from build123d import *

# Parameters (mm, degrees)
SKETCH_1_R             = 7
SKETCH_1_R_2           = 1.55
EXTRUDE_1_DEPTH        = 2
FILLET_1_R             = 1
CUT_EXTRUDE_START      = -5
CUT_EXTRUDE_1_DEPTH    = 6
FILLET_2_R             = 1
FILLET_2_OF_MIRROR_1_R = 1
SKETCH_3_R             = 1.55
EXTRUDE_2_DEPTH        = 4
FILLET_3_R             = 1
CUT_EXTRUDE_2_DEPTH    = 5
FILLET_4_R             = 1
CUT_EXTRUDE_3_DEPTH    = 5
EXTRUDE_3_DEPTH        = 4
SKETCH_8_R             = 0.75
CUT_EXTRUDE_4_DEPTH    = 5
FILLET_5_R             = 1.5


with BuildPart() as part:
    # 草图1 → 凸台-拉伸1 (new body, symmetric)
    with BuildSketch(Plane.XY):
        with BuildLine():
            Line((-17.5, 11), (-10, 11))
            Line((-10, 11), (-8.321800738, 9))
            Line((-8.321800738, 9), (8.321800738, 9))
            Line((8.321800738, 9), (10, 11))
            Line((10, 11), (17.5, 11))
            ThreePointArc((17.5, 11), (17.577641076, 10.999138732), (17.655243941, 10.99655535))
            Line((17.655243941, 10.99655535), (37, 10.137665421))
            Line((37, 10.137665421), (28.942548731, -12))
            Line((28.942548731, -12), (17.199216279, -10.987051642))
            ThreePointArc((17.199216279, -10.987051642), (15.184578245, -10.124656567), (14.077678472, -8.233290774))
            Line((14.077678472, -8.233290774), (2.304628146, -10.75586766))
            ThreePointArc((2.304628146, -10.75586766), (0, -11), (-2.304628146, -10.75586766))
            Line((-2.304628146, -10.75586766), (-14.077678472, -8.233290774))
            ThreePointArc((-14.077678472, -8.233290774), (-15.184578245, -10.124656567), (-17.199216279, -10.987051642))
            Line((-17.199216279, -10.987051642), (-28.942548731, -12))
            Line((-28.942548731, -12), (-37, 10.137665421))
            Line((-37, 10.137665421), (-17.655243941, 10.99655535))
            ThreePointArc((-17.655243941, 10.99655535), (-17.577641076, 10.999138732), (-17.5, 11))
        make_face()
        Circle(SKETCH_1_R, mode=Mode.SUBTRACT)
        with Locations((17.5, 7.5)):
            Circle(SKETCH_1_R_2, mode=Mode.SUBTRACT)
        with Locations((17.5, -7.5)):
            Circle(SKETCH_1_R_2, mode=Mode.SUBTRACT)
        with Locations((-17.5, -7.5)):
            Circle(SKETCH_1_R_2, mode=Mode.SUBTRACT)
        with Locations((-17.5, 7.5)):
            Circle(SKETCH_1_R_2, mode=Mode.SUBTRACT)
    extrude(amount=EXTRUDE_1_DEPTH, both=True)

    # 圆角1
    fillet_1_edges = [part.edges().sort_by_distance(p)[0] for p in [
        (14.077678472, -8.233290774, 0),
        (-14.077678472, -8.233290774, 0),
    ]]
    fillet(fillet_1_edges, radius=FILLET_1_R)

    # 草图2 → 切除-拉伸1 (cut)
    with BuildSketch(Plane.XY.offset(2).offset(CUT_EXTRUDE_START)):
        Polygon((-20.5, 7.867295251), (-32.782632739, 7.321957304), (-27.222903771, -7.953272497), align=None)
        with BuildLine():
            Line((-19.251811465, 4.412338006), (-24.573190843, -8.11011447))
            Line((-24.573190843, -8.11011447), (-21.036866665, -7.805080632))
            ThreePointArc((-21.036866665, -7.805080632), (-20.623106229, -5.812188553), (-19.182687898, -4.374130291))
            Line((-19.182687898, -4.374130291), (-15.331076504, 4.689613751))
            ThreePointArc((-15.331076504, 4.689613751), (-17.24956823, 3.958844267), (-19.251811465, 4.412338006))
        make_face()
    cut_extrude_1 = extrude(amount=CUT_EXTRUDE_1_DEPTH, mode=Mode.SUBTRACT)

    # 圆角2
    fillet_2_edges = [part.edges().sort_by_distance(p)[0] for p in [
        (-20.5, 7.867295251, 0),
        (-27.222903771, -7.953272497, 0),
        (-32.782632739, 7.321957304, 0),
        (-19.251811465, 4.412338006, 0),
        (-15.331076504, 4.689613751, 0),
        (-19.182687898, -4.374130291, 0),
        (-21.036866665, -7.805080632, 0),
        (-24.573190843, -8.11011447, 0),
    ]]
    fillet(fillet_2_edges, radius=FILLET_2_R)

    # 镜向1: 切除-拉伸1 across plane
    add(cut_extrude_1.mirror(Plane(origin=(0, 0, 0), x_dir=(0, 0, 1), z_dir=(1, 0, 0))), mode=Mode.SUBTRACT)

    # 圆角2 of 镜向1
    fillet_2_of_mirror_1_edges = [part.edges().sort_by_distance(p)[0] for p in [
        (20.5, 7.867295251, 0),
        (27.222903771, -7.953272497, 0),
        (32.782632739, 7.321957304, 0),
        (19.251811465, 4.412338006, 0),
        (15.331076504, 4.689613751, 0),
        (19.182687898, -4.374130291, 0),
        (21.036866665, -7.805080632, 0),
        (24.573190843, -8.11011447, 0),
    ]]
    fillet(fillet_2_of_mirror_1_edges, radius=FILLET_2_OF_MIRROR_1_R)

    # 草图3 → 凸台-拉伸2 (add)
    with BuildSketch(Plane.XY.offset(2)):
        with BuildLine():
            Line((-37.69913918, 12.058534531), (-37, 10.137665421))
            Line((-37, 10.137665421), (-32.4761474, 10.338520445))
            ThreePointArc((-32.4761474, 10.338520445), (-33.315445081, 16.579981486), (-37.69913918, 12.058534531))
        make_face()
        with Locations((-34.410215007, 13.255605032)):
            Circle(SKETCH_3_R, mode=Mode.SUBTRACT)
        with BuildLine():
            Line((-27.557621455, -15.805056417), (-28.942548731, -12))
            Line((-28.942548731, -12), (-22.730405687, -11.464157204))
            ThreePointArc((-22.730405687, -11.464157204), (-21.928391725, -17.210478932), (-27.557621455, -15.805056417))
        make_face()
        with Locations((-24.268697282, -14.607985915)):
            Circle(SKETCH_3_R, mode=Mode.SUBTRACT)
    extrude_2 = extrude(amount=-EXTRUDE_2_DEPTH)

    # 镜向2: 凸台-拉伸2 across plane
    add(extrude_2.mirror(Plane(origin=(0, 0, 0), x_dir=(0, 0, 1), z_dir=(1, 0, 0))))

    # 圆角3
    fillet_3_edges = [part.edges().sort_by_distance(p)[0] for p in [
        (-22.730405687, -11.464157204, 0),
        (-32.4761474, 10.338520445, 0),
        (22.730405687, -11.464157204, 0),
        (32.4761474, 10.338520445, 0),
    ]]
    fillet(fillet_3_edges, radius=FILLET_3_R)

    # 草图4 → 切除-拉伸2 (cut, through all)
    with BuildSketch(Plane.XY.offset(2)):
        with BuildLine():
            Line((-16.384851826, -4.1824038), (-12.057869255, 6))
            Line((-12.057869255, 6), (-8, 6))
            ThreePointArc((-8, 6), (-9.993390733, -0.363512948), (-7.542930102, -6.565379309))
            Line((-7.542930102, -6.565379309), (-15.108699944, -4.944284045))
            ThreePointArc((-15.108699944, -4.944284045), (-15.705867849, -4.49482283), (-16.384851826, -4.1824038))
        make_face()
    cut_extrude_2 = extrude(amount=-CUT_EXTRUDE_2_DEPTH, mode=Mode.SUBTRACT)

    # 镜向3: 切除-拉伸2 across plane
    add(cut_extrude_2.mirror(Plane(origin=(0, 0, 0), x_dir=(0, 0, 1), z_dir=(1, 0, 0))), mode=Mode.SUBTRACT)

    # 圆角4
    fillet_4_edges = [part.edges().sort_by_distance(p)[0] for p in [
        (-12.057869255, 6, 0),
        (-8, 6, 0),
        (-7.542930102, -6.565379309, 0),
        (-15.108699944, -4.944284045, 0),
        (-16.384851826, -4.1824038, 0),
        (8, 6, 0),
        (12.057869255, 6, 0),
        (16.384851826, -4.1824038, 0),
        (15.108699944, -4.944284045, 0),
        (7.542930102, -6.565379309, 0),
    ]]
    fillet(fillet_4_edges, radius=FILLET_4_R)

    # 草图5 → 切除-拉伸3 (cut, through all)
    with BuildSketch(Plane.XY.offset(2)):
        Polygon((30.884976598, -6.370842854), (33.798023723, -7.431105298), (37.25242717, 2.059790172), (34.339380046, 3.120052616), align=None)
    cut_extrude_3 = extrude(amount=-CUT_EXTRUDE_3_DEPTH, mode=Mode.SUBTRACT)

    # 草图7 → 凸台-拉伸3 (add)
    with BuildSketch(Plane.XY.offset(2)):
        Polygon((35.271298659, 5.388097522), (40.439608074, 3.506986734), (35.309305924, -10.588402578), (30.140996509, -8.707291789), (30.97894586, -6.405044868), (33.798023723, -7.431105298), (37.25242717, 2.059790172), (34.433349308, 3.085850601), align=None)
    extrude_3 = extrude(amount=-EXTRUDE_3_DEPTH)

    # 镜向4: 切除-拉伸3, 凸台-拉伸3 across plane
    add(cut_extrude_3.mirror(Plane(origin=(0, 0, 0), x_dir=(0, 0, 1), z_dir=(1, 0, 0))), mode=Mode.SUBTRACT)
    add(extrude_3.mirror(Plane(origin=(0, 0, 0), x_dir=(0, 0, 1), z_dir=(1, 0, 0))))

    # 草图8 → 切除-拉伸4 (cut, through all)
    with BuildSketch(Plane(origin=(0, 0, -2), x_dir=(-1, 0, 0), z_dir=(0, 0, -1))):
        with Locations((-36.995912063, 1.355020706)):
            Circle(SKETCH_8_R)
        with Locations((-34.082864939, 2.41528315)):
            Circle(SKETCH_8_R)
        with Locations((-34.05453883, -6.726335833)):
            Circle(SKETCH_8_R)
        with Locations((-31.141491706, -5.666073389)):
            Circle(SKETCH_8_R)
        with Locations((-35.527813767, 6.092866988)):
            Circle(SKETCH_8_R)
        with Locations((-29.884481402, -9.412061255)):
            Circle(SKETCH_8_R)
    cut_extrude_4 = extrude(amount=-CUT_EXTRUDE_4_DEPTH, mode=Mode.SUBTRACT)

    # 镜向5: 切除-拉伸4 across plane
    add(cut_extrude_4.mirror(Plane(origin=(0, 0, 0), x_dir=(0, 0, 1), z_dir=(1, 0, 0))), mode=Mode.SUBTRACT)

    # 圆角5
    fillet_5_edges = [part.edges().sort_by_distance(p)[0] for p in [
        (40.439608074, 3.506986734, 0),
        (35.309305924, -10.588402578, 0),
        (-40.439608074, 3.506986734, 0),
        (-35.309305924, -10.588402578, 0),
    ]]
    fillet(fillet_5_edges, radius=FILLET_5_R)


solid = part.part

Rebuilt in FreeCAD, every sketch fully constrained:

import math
import FreeCAD as App
import Part
import Sketcher
Q = App.Units.Quantity


def edges_at(feature, points):
    """Names of the edges that pass closest to the given points."""
    edges = feature.Shape.Edges
    near = lambda p: min(range(len(edges)), key=lambda i: edges[i].distToShape(Part.Vertex(*p))[0])
    return sorted({f"Edge{near(p) + 1}" for p in points})

doc = App.newDocument("Part")
body = doc.addObject("PartDesign::Body", "Body")

# Sketch on XY plane
sketch1 = doc.addObject("Sketcher::SketchObject", "Sketch")
body.addObject(sketch1)
sketch1.AttachmentSupport = (doc.XY_Plane, [""])
sketch1.MapMode = "FlatFace"
sketch1.addGeometry([
    Part.LineSegment(App.Vector(-10, 11, 0), App.Vector(-17.5, 11, 0)),  # 0
    Part.ArcOfCircle(Part.Circle(App.Vector(-17.5, 7.500002, 0), App.Vector(0, 0, 1), 3.499998), math.radians(89.999999), math.radians(92.542213)),  # 1
    Part.LineSegment(App.Vector(-17.655244, 10.996555, 0), App.Vector(-37, 10.137665, 0)),  # 2
    Part.LineSegment(App.Vector(-37, 10.137665, 0), App.Vector(-28.942549, -12, 0)),  # 3
    Part.LineSegment(App.Vector(-28.942549, -12, 0), App.Vector(-17.199216, -10.987052, 0)),  # 4
    Part.ArcOfCircle(Part.Circle(App.Vector(-17.5, -7.5, 0), App.Vector(0, 0, 1), 3.5), math.radians(-85.070022), math.radians(-12.093735)),  # 5
    Part.LineSegment(App.Vector(-14.077678, -8.233291, 0), App.Vector(-2.304628, -10.755868, 0)),  # 6
    Part.ArcOfCircle(Part.Circle(App.Vector(0, 0, 0), App.Vector(0, 0, 1), 11), math.radians(-102.093735), math.radians(-77.906265)),  # 7
    Part.LineSegment(App.Vector(2.304628, -10.755868, 0), App.Vector(14.077678, -8.233291, 0)),  # 8
    Part.ArcOfCircle(Part.Circle(App.Vector(17.5, -7.5, 0), App.Vector(0, 0, 1), 3.5), math.radians(-167.906265), math.radians(-94.929978)),  # 9
    Part.LineSegment(App.Vector(17.199216, -10.987052, 0), App.Vector(28.942549, -12, 0)),  # 10
    Part.LineSegment(App.Vector(28.942549, -12, 0), App.Vector(37, 10.137665, 0)),  # 11
    Part.LineSegment(App.Vector(37, 10.137665, 0), App.Vector(17.655244, 10.996555, 0)),  # 12
    Part.ArcOfCircle(Part.Circle(App.Vector(17.5, 7.500002, 0), App.Vector(0, 0, 1), 3.499998), math.radians(87.457787), math.radians(90.000001)),  # 13
    Part.LineSegment(App.Vector(17.5, 11, 0), App.Vector(10, 11, 0)),  # 14
    Part.LineSegment(App.Vector(10, 11, 0), App.Vector(8.321801, 9, 0)),  # 15
    Part.LineSegment(App.Vector(8.321801, 9, 0), App.Vector(-8.321801, 9, 0)),  # 16
    Part.LineSegment(App.Vector(-8.321801, 9, 0), App.Vector(-10, 11, 0)),  # 17
    Part.Circle(App.Vector(17.5, -7.5, 0), App.Vector(0, 0, 1), 1.55),  # 18
    Part.Circle(App.Vector(-17.5, -7.5, 0), App.Vector(0, 0, 1), 1.55),  # 19
    Part.Circle(App.Vector(17.5, 7.5, 0), App.Vector(0, 0, 1), 1.55),  # 20
    Part.Circle(App.Vector(0, 0, 0), App.Vector(0, 0, 1), 7),  # 21
    Part.Circle(App.Vector(-17.5, 7.5, 0), App.Vector(0, 0, 1), 1.55),  # 22
], False)
sketch1.addConstraint([
    Sketcher.Constraint("Tangent", 0, 2, 1, 1),
    Sketcher.Constraint("Tangent", 1, 2, 2, 1),
    Sketcher.Constraint("Coincident", 2, 2, 3, 1),
    Sketcher.Constraint("Coincident", 3, 2, 4, 1),
    Sketcher.Constraint("Tangent", 4, 2, 5, 1),
    Sketcher.Constraint("Coincident", 5, 2, 6, 1),
    Sketcher.Constraint("Tangent", 6, 2, 7, 1),
    Sketcher.Constraint("Tangent", 7, 2, 8, 1),
    Sketcher.Constraint("Coincident", 8, 2, 9, 1),
    Sketcher.Constraint("Tangent", 9, 2, 10, 1),
    Sketcher.Constraint("Coincident", 10, 2, 11, 1),
    Sketcher.Constraint("Coincident", 11, 2, 12, 1),
    Sketcher.Constraint("Tangent", 12, 2, 13, 1),
    Sketcher.Constraint("Tangent", 13, 2, 14, 1),
    Sketcher.Constraint("Coincident", 14, 2, 15, 1),
    Sketcher.Constraint("Coincident", 15, 2, 16, 1),
    Sketcher.Constraint("Coincident", 16, 2, 17, 1),
    Sketcher.Constraint("Coincident", 17, 2, 0, 1),
    Sketcher.Constraint("Horizontal", 0),
    Sketcher.Constraint("Horizontal", 14),
    Sketcher.Constraint("Horizontal", 16),
    Sketcher.Constraint("Coincident", 7, 3, -1, 1),
    Sketcher.Constraint("Coincident", 21, 3, -1, 1),
    Sketcher.Constraint("Coincident", 18, 3, 9, 3),
    Sketcher.Constraint("Coincident", 19, 3, 5, 3),
    Sketcher.Constraint("Coincident", 20, 3, 13, 3),
    Sketcher.Constraint("Coincident", 22, 3, 1, 3),
    Sketcher.Constraint("Equal", 5, 9),
    Sketcher.Constraint("Equal", 1, 13),
    Sketcher.Constraint("Equal", 18, 19),
    Sketcher.Constraint("Equal", 19, 20),
    Sketcher.Constraint("Equal", 20, 22),
    Sketcher.Constraint("Symmetric", 1, 3, 9, 3, -1, 1),
    Sketcher.Constraint("Symmetric", 5, 3, 13, 3, -1, 1),
    Sketcher.Constraint("Symmetric", 5, 3, 9, 3, -2),
    Sketcher.Constraint("Symmetric", 3, 2, 10, 2, -2),
    Sketcher.Constraint("Symmetric", 2, 2, 11, 2, -2),
    Sketcher.Constraint("Horizontal", 6, 2, 7, 2),
    Sketcher.Constraint("Equal", 0, 14),
    Sketcher.Constraint("Equal", 15, 17),
    Sketcher.Constraint("Diameter", 21, Q("14 mm")),
    Sketcher.Constraint("Radius", 7, Q("11 mm")),
    Sketcher.Constraint("Diameter", 18, Q("3.1 mm")),
    Sketcher.Constraint("Radius", 5, Q("3.5 mm")),
    Sketcher.Constraint("Angle", 3, Q("-70 deg")),
    Sketcher.Constraint("Angle", 15, Q("-130 deg")),
    Sketcher.Constraint("DistanceX", 0, 2, 0, 1, Q("7.5 mm")),
    Sketcher.Constraint("DistanceY", -1, 1, 0, 2, Q("11 mm")),
    Sketcher.Constraint("DistanceX", 2, 2, -1, 1, Q("37 mm")),
    Sketcher.Constraint("DistanceY", 3, 2, -1, 1, Q("12 mm")),
    Sketcher.Constraint("DistanceX", -1, 1, 14, 2, Q("10 mm")),
    Sketcher.Constraint("DistanceY", -1, 1, 15, 2, Q("9 mm")),
    Sketcher.Constraint("DistanceY", 9, 3, 20, 3, Q("15 mm")),
    Sketcher.Constraint("Distance", 3, Q("23.558411 mm")),
    Sketcher.Constraint("Distance", 6, Q("12.04027 mm")),
])
pad1 = doc.addObject("PartDesign::Pad", "Pad")
body.addObject(pad1)
pad1.Profile = sketch1
pad1.Length = 4
pad1.Midplane = True
doc.recompute()

fillet = doc.addObject("PartDesign::Fillet", "Fillet")
body.addObject(fillet)
fillet.Base = (pad1, edges_at(pad1, [(14.078, -8.233, 0), (-14.078, -8.233, 0)]))
fillet.Radius = 1

# Sketch on XY plane
sketch2 = doc.addObject("Sketcher::SketchObject", "Sketch001")
body.addObject(sketch2)
sketch2.AttachmentSupport = (doc.XY_Plane, [""])
sketch2.MapMode = "FlatFace"
sketch2.AttachmentOffset = App.Placement(App.Vector(0, 0, -3), App.Rotation())
sketch2.addGeometry([
    Part.LineSegment(App.Vector(-20.5, 7.867295, 0), App.Vector(-32.782633, 7.321957, 0)),  # 0
    Part.LineSegment(App.Vector(-32.782633, 7.321957, 0), App.Vector(-27.222904, -7.953272, 0)),  # 1
    Part.LineSegment(App.Vector(-27.222904, -7.953272, 0), App.Vector(-20.5, 7.867295, 0)),  # 2
    Part.LineSegment(App.Vector(-19.251811, 4.412338, 0), App.Vector(-24.573191, -8.110114, 0)),  # 3
    Part.LineSegment(App.Vector(-24.573191, -8.110114, 0), App.Vector(-21.036867, -7.805081, 0)),  # 4
    Part.ArcOfCircle(Part.Circle(App.Vector(-17.5, -7.5, 0), App.Vector(0, 0, 1), 3.55), math.radians(118.294038), math.radians(184.929978)),  # 5
    Part.LineSegment(App.Vector(-19.182688, -4.37413, 0), App.Vector(-15.331077, 4.689614, 0)),  # 6
    Part.ArcOfCircle(Part.Circle(App.Vector(-17.5, 7.5, 0), App.Vector(0, 0, 1), 3.55), math.radians(-119.56878), math.radians(-52.340734)),  # 7
], False)
sketch2.addConstraint([
    Sketcher.Constraint("Coincident", 0, 2, 1, 1),
    Sketcher.Constraint("Coincident", 1, 2, 2, 1),
    Sketcher.Constraint("Coincident", 2, 2, 0, 1),
    Sketcher.Constraint("Coincident", 3, 2, 4, 1),
    Sketcher.Constraint("Coincident", 4, 2, 5, 2),
    Sketcher.Constraint("Coincident", 5, 1, 6, 1),
    Sketcher.Constraint("Coincident", 6, 2, 7, 2),
    Sketcher.Constraint("Coincident", 7, 1, 3, 1),
    Sketcher.Constraint("Equal", 5, 7),
    Sketcher.Constraint("Symmetric", 5, 3, 7, 3, -1),
    Sketcher.Constraint("Parallel", 2, 3),
    Sketcher.Constraint("Parallel", 3, 6),
    Sketcher.Constraint("Angle", 1, Q("-70 deg")),
    Sketcher.Constraint("Radius", 5, Q("3.55 mm")),
    Sketcher.Constraint("DistanceY", 5, 3, 7, 3, Q("15 mm")),
    Sketcher.Constraint("DistanceX", 2, 2, 7, 3, Q("3 mm")),
    Sketcher.Constraint("DistanceX", 5, 3, -1, 1, Q("17.5 mm")),
    Sketcher.Constraint("Distance", 1, Q("16.25556 mm")),
    Sketcher.Constraint("Distance", 2, Q("17.189759 mm")),
    Sketcher.Constraint("DistanceX", 3, 2, -1, 1, Q("24.573191 mm")),
    Sketcher.Constraint("DistanceY", 4, 2, -1, 1, Q("7.805081 mm")),
    Sketcher.Constraint("DistanceY", 5, 1, -1, 1, Q("4.37413 mm")),
    Sketcher.Constraint("DistanceX", 7, 1, -1, 1, Q("19.251811 mm")),
    Sketcher.Constraint("DistanceY", 3, 2, 1, 2, Q("0.156842 mm")),
    Sketcher.Constraint("DistanceY", 3, 2, 2, 2, Q("15.97741 mm")),
])
pocket1 = doc.addObject("PartDesign::Pocket", "Pocket")
body.addObject(pocket1)
pocket1.Profile = sketch2
pocket1.Length = 6
pocket1.Reversed = True
doc.recompute()

fillet2 = doc.addObject("PartDesign::Fillet", "Fillet001")
body.addObject(fillet2)
fillet2.Base = (pocket1, edges_at(pocket1, [
    (-20.5, 7.867, 0),
    (-27.223, -7.953, 0),
    (-32.783, 7.322, 0),
    (-19.252, 4.412, 0),
    (-15.331, 4.69, 0),
    (-19.183, -4.374, 0),
    (-21.037, -7.805, 0),
    (-24.573, -8.11, 0),
]))
fillet2.Radius = 1
doc.recompute()

mirrored = doc.addObject("PartDesign::Mirrored", "Mirrored")
body.addObject(mirrored)
mirrored.Originals = [pocket1]
mirrored.MirrorPlane = (doc.YZ_Plane, [""])
body.Tip = mirrored
doc.recompute()

fillet3 = doc.addObject("PartDesign::Fillet", "Fillet002")
body.addObject(fillet3)
fillet3.Base = (mirrored, edges_at(mirrored, [
    (20.5, 7.867, 0),
    (27.223, -7.953, 0),
    (32.783, 7.322, 0),
    (19.252, 4.412, 0),
    (15.331, 4.69, 0),
    (19.183, -4.374, 0),
    (21.037, -7.805, 0),
    (24.573, -8.11, 0),
]))
fillet3.Radius = 1

# Sketch on XY plane
sketch3 = doc.addObject("Sketcher::SketchObject", "Sketch002")
body.addObject(sketch3)
sketch3.AttachmentSupport = (doc.XY_Plane, [""])
sketch3.MapMode = "FlatFace"
sketch3.AttachmentOffset = App.Placement(App.Vector(0, 0, 2), App.Rotation())
sketch3.addGeometry([
    Part.LineSegment(App.Vector(-37.699139, 12.058535, 0), App.Vector(-37, 10.137665, 0)),  # 0
    Part.LineSegment(App.Vector(-37, 10.137665, 0), App.Vector(-32.476147, 10.33852, 0)),  # 1
    Part.ArcOfCircle(Part.Circle(App.Vector(-34.410215, 13.255605, 0), App.Vector(0, 0, 1), 3.5), math.radians(-56.455069), math.radians(200)),  # 2
    Part.Circle(App.Vector(-34.410215, 13.255605, 0), App.Vector(0, 0, 1), 1.55),  # 3
    Part.LineSegment(App.Vector(-28.942549, -12, 0), App.Vector(-27.557621, -15.805056, 0)),  # 4
    Part.ArcOfCircle(Part.Circle(App.Vector(-24.268697, -14.607986, 0), App.Vector(0, 0, 1), 3.5), math.radians(-160), math.radians(63.927258)),  # 5
    Part.LineSegment(App.Vector(-22.730406, -11.464157, 0), App.Vector(-28.942549, -12, 0)),  # 6
    Part.Circle(App.Vector(-24.268697, -14.607986, 0), App.Vector(0, 0, 1), 1.55),  # 7
], False)
sketch3.addConstraint([
    Sketcher.Constraint("Coincident", 0, 2, 1, 1),
    Sketcher.Constraint("Coincident", 1, 2, 2, 1),
    Sketcher.Constraint("Tangent", 2, 2, 0, 1),
    Sketcher.Constraint("Tangent", 4, 2, 5, 1),
    Sketcher.Constraint("Coincident", 5, 2, 6, 1),
    Sketcher.Constraint("Coincident", 6, 2, 4, 1),
    Sketcher.Constraint("Coincident", 3, 3, 2, 3),
    Sketcher.Constraint("Coincident", 7, 3, 5, 3),
    Sketcher.Constraint("Equal", 2, 5),
    Sketcher.Constraint("Equal", 3, 7),
    Sketcher.Constraint("Parallel", 0, 4),
    Sketcher.Constraint("Diameter", 3, Q("3.1 mm")),
    Sketcher.Constraint("Radius", 2, Q("3.5 mm")),
    Sketcher.Constraint("Angle", 0, Q("-70 deg")),
    Sketcher.Constraint("DistanceX", 0, 2, -1, 1, Q("37 mm")),
    Sketcher.Constraint("DistanceY", 6, 2, -1, 1, Q("12 mm")),
    Sketcher.Constraint("DistanceY", 4, 2, 5, 2, Q("4.340899 mm")),
    Sketcher.Constraint("DistanceX", 1, 2, 6, 2, Q("3.533599 mm")),
    Sketcher.Constraint("Distance", 1, Q("4.528309 mm")),
    Sketcher.Constraint("Distance", 6, Q("6.23521 mm")),
    Sketcher.Constraint("DistanceY", -1, 1, 1, 2, Q("10.33852 mm")),
    Sketcher.Constraint("DistanceX", 2, 2, -1, 1, Q("37.699139 mm")),
])
pad2 = doc.addObject("PartDesign::Pad", "Pad001")
body.addObject(pad2)
pad2.Profile = sketch3
pad2.Length = 4
pad2.Reversed = True
doc.recompute()

mirrored2 = doc.addObject("PartDesign::Mirrored", "Mirrored001")
body.addObject(mirrored2)
mirrored2.Originals = [pad2]
mirrored2.MirrorPlane = (doc.YZ_Plane, [""])
body.Tip = mirrored2
doc.recompute()

fillet4 = doc.addObject("PartDesign::Fillet", "Fillet003")
body.addObject(fillet4)
fillet4.Base = (mirrored2, edges_at(mirrored2, [
    (-22.73, -11.464, 0),
    (-32.476, 10.339, 0),
    (22.73, -11.464, 0),
    (32.476, 10.339, 0),
]))
fillet4.Radius = 1

# Sketch on XY plane
sketch4 = doc.addObject("Sketcher::SketchObject", "Sketch003")
body.addObject(sketch4)
sketch4.AttachmentSupport = (doc.XY_Plane, [""])
sketch4.MapMode = "FlatFace"
sketch4.AttachmentOffset = App.Placement(App.Vector(0, 0, 2), App.Rotation())
sketch4.addGeometry([
    Part.LineSegment(App.Vector(-12.057869, 6, 0), App.Vector(-16.384852, -4.182404, 0)),  # 0
    Part.ArcOfCircle(Part.Circle(App.Vector(-17.5, -7.5, 0), App.Vector(0, 0, 1), 3.5), math.radians(46.903546), math.radians(71.420888)),  # 1
    Part.LineSegment(App.Vector(-15.1087, -4.944284, 0), App.Vector(-7.54293, -6.565379, 0)),  # 2
    Part.ArcOfCircle(Part.Circle(App.Vector(0, 0, 0), App.Vector(0, 0, 1), 10), math.radians(143.130102), math.radians(221.036367)),  # 3
    Part.LineSegment(App.Vector(-8, 6, 0), App.Vector(-12.057869, 6, 0)),  # 4
], False)
sketch4.addConstraint([
    Sketcher.Constraint("Coincident", 0, 2, 1, 2),
    Sketcher.Constraint("Coincident", 1, 1, 2, 1),
    Sketcher.Constraint("Coincident", 2, 2, 3, 2),
    Sketcher.Constraint("Coincident", 3, 1, 4, 1),
    Sketcher.Constraint("Coincident", 4, 2, 0, 1),
    Sketcher.Constraint("Horizontal", 4),
    Sketcher.Constraint("Coincident", 3, 3, -1, 1),
    Sketcher.Constraint("Radius", 3, Q("10 mm")),
    Sketcher.Constraint("Radius", 1, Q("3.5 mm")),
    Sketcher.Constraint("DistanceX", 3, 1, -1, 1, Q("8 mm")),
    Sketcher.Constraint("DistanceX", 1, 3, -1, 1, Q("17.5 mm")),
    Sketcher.Constraint("DistanceY", 1, 3, -1, 1, Q("7.5 mm")),
    Sketcher.Constraint("DistanceX", 4, 2, 4, 1, Q("4.057869 mm")),
    Sketcher.Constraint("DistanceX", 1, 1, -1, 1, Q("15.1087 mm")),
    Sketcher.Constraint("Distance", 0, Q("11.06364 mm")),
    Sketcher.Constraint("DistanceX", 2, 2, -1, 1, Q("7.54293 mm")),
])
pocket2 = doc.addObject("PartDesign::Pocket", "Pocket001")
body.addObject(pocket2)
pocket2.Profile = sketch4
pocket2.Type = "ThroughAll"
doc.recompute()

mirrored3 = doc.addObject("PartDesign::Mirrored", "Mirrored002")
body.addObject(mirrored3)
mirrored3.Originals = [pocket2]
mirrored3.MirrorPlane = (doc.YZ_Plane, [""])
body.Tip = mirrored3
doc.recompute()

fillet5 = doc.addObject("PartDesign::Fillet", "Fillet004")
body.addObject(fillet5)
fillet5.Base = (mirrored3, edges_at(mirrored3, [
    (-12.058, 6, 0),
    (-8, 6, 0),
    (-7.543, -6.565, 0),
    (-15.109, -4.944, 0),
    (-16.385, -4.182, 0),
    (8, 6, 0),
    (12.058, 6, 0),
    (16.385, -4.182, 0),
    (15.109, -4.944, 0),
    (7.543, -6.565, 0),
]))
fillet5.Radius = 1

# Sketch on XY plane
sketch5 = doc.addObject("Sketcher::SketchObject", "Sketch004")
body.addObject(sketch5)
sketch5.AttachmentSupport = (doc.XY_Plane, [""])
sketch5.MapMode = "FlatFace"
sketch5.AttachmentOffset = App.Placement(App.Vector(0, 0, 2), App.Rotation())
sketch5.addGeometry([
    Part.LineSegment(App.Vector(30.884977, -6.370843, 0), App.Vector(33.798024, -7.431105, 0)),
    Part.LineSegment(App.Vector(33.798024, -7.431105, 0), App.Vector(37.252427, 2.05979, 0)),
    Part.LineSegment(App.Vector(37.252427, 2.05979, 0), App.Vector(34.33938, 3.120053, 0)),
    Part.LineSegment(App.Vector(34.33938, 3.120053, 0), App.Vector(30.884977, -6.370843, 0)),
], False)
sketch5.addConstraint([
    Sketcher.Constraint("Coincident", 0, 2, 1, 1),
    Sketcher.Constraint("Coincident", 1, 2, 2, 1),
    Sketcher.Constraint("Coincident", 2, 2, 3, 1),
    Sketcher.Constraint("Coincident", 3, 2, 0, 1),
    Sketcher.Constraint("Perpendicular", 0, 1),
    Sketcher.Constraint("Perpendicular", 1, 2),
    Sketcher.Constraint("Perpendicular", 2, 3),
    Sketcher.Constraint("Angle", 0, Q("-20 deg")),
    Sketcher.Constraint("Distance", 0, Q("3.1 mm")),
    Sketcher.Constraint("Distance", 1, Q("10.1 mm")),
    Sketcher.Constraint("DistanceY", -1, 1, 1, 2, Q("2.05979 mm")),
    Sketcher.Constraint("DistanceX", -1, 1, 2, 2, Q("34.33938 mm")),
])
pocket3 = doc.addObject("PartDesign::Pocket", "Pocket002")
body.addObject(pocket3)
pocket3.Profile = sketch5
pocket3.Type = "ThroughAll"

# Sketch on XY plane
sketch6 = doc.addObject("Sketcher::SketchObject", "Sketch005")
body.addObject(sketch6)
sketch6.AttachmentSupport = (doc.XY_Plane, [""])
sketch6.MapMode = "FlatFace"
sketch6.AttachmentOffset = App.Placement(App.Vector(0, 0, 2), App.Rotation())
sketch6.addGeometry([
    Part.LineSegment(App.Vector(40.439608, 3.506987, 0), App.Vector(35.271299, 5.388098, 0)),  # 0
    Part.LineSegment(App.Vector(35.271299, 5.388098, 0), App.Vector(34.433349, 3.085851, 0)),  # 1
    Part.LineSegment(App.Vector(34.433349, 3.085851, 0), App.Vector(37.252427, 2.05979, 0)),  # 2
    Part.LineSegment(App.Vector(37.252427, 2.05979, 0), App.Vector(33.798024, -7.431105, 0)),  # 3
    Part.LineSegment(App.Vector(33.798024, -7.431105, 0), App.Vector(30.978946, -6.405045, 0)),  # 4
    Part.LineSegment(App.Vector(30.978946, -6.405045, 0), App.Vector(30.140997, -8.707292, 0)),  # 5
    Part.LineSegment(App.Vector(30.140997, -8.707292, 0), App.Vector(35.309306, -10.588403, 0)),  # 6
    Part.LineSegment(App.Vector(35.309306, -10.588403, 0), App.Vector(40.439608, 3.506987, 0)),  # 7
], False)
sketch6.addConstraint([
    Sketcher.Constraint("Coincident", 0, 2, 1, 1),
    Sketcher.Constraint("Coincident", 1, 2, 2, 1),
    Sketcher.Constraint("Coincident", 2, 2, 3, 1),
    Sketcher.Constraint("Coincident", 3, 2, 4, 1),
    Sketcher.Constraint("Coincident", 4, 2, 5, 1),
    Sketcher.Constraint("Coincident", 5, 2, 6, 1),
    Sketcher.Constraint("Coincident", 6, 2, 7, 1),
    Sketcher.Constraint("Coincident", 7, 2, 0, 1),
    Sketcher.Constraint("Perpendicular", 0, 1),
    Sketcher.Constraint("Perpendicular", 1, 2),
    Sketcher.Constraint("Perpendicular", 2, 3),
    Sketcher.Constraint("Perpendicular", 3, 4),
    Sketcher.Constraint("Perpendicular", 4, 5),
    Sketcher.Constraint("Perpendicular", 5, 6),
    Sketcher.Constraint("Perpendicular", 6, 7),
    Sketcher.Constraint("Equal", 2, 4),
    Sketcher.Constraint("Equal", 1, 5),
    Sketcher.Constraint("Angle", 0, Q("160 deg")),
    Sketcher.Constraint("Distance", 2, Q("3 mm")),
    Sketcher.Constraint("Distance", 7, Q("15 mm")),
    Sketcher.Constraint("Distance", 0, Q("5.5 mm")),
    Sketcher.Constraint("Distance", 3, Q("10.1 mm")),
    Sketcher.Constraint("DistanceX", -1, 1, 0, 2, Q("35.271299 mm")),
    Sketcher.Constraint("DistanceY", -1, 1, 1, 2, Q("3.085851 mm")),
])
pad3 = doc.addObject("PartDesign::Pad", "Pad002")
body.addObject(pad3)
pad3.Profile = sketch6
pad3.Length = 4
pad3.Reversed = True
doc.recompute()

mirrored4 = doc.addObject("PartDesign::Mirrored", "Mirrored003")
body.addObject(mirrored4)
mirrored4.Originals = [pocket3, pad3]
mirrored4.MirrorPlane = (doc.YZ_Plane, [""])
body.Tip = mirrored4

# Sketch on XY plane
sketch7 = doc.addObject("Sketcher::SketchObject", "Sketch006")
body.addObject(sketch7)
sketch7.AttachmentSupport = (doc.XY_Plane, [""])
sketch7.MapMode = "FlatFace"
sketch7.AttachmentOffset = App.Placement(App.Vector(0, 0, -2), App.Rotation())
sketch7.addGeometry([
    Part.Circle(App.Vector(36.995912, 1.355021, 0), App.Vector(0, 0, 1), 0.75),  # 0
    Part.Circle(App.Vector(34.082865, 2.415283, 0), App.Vector(0, 0, 1), 0.75),  # 1
    Part.Circle(App.Vector(34.054539, -6.726336, 0), App.Vector(0, 0, 1), 0.75),  # 2
    Part.Circle(App.Vector(31.141492, -5.666073, 0), App.Vector(0, 0, 1), 0.75),  # 3
    Part.Circle(App.Vector(35.527814, 6.092867, 0), App.Vector(0, 0, 1), 0.75),  # 4
    Part.Circle(App.Vector(29.884481, -9.412061, 0), App.Vector(0, 0, 1), 0.75),  # 5
], False)
sketch7.addConstraint([
    Sketcher.Constraint("Equal", 0, 1),
    Sketcher.Constraint("Equal", 1, 2),
    Sketcher.Constraint("Equal", 2, 3),
    Sketcher.Constraint("Equal", 3, 4),
    Sketcher.Constraint("Equal", 4, 5),
    Sketcher.Constraint("Diameter", 0, Q("1.5 mm")),
    Sketcher.Constraint("DistanceX", 4, 3, 0, 3, Q("1.468098 mm")),
    Sketcher.Constraint("DistanceY", -1, 1, 0, 3, Q("1.355021 mm")),
    Sketcher.Constraint("DistanceX", -1, 1, 2, 3, Q("34.054539 mm")),
    Sketcher.Constraint("DistanceX", -1, 1, 3, 3, Q("31.141492 mm")),
    Sketcher.Constraint("DistanceX", -1, 1, 5, 3, Q("29.884481 mm")),
    Sketcher.Constraint("DistanceY", 5, 3, -1, 1, Q("9.412061 mm")),
    Sketcher.Constraint("DistanceY", 2, 3, 1, 3, Q("9.141619 mm")),
    Sketcher.Constraint("DistanceX", 3, 3, 0, 3, Q("5.85442 mm")),
    Sketcher.Constraint("DistanceX", 1, 3, 4, 3, Q("1.444949 mm")),
    Sketcher.Constraint("DistanceY", 3, 3, 4, 3, Q("11.75894 mm")),
    Sketcher.Constraint("DistanceY", 5, 3, 4, 3, Q("15.504928 mm")),
    Sketcher.Constraint("DistanceY", -1, 1, 1, 3, Q("2.415283 mm")),
])
pocket4 = doc.addObject("PartDesign::Pocket", "Pocket003")
body.addObject(pocket4)
pocket4.Profile = sketch7
pocket4.Type = "ThroughAll"
pocket4.Reversed = True
doc.recompute()

mirrored5 = doc.addObject("PartDesign::Mirrored", "Mirrored004")
body.addObject(mirrored5)
mirrored5.Originals = [pocket4]
mirrored5.MirrorPlane = (doc.YZ_Plane, [""])
body.Tip = mirrored5
doc.recompute()

fillet6 = doc.addObject("PartDesign::Fillet", "Fillet005")
body.addObject(fillet6)
fillet6.Base = (mirrored5, edges_at(mirrored5, [
    (40.44, 3.507, 0),
    (35.309, -10.588, 0),
    (-40.44, 3.507, 0),
    (-35.309, -10.588, 0),
]))
fillet6.Radius = 1.5

doc.recompute()
